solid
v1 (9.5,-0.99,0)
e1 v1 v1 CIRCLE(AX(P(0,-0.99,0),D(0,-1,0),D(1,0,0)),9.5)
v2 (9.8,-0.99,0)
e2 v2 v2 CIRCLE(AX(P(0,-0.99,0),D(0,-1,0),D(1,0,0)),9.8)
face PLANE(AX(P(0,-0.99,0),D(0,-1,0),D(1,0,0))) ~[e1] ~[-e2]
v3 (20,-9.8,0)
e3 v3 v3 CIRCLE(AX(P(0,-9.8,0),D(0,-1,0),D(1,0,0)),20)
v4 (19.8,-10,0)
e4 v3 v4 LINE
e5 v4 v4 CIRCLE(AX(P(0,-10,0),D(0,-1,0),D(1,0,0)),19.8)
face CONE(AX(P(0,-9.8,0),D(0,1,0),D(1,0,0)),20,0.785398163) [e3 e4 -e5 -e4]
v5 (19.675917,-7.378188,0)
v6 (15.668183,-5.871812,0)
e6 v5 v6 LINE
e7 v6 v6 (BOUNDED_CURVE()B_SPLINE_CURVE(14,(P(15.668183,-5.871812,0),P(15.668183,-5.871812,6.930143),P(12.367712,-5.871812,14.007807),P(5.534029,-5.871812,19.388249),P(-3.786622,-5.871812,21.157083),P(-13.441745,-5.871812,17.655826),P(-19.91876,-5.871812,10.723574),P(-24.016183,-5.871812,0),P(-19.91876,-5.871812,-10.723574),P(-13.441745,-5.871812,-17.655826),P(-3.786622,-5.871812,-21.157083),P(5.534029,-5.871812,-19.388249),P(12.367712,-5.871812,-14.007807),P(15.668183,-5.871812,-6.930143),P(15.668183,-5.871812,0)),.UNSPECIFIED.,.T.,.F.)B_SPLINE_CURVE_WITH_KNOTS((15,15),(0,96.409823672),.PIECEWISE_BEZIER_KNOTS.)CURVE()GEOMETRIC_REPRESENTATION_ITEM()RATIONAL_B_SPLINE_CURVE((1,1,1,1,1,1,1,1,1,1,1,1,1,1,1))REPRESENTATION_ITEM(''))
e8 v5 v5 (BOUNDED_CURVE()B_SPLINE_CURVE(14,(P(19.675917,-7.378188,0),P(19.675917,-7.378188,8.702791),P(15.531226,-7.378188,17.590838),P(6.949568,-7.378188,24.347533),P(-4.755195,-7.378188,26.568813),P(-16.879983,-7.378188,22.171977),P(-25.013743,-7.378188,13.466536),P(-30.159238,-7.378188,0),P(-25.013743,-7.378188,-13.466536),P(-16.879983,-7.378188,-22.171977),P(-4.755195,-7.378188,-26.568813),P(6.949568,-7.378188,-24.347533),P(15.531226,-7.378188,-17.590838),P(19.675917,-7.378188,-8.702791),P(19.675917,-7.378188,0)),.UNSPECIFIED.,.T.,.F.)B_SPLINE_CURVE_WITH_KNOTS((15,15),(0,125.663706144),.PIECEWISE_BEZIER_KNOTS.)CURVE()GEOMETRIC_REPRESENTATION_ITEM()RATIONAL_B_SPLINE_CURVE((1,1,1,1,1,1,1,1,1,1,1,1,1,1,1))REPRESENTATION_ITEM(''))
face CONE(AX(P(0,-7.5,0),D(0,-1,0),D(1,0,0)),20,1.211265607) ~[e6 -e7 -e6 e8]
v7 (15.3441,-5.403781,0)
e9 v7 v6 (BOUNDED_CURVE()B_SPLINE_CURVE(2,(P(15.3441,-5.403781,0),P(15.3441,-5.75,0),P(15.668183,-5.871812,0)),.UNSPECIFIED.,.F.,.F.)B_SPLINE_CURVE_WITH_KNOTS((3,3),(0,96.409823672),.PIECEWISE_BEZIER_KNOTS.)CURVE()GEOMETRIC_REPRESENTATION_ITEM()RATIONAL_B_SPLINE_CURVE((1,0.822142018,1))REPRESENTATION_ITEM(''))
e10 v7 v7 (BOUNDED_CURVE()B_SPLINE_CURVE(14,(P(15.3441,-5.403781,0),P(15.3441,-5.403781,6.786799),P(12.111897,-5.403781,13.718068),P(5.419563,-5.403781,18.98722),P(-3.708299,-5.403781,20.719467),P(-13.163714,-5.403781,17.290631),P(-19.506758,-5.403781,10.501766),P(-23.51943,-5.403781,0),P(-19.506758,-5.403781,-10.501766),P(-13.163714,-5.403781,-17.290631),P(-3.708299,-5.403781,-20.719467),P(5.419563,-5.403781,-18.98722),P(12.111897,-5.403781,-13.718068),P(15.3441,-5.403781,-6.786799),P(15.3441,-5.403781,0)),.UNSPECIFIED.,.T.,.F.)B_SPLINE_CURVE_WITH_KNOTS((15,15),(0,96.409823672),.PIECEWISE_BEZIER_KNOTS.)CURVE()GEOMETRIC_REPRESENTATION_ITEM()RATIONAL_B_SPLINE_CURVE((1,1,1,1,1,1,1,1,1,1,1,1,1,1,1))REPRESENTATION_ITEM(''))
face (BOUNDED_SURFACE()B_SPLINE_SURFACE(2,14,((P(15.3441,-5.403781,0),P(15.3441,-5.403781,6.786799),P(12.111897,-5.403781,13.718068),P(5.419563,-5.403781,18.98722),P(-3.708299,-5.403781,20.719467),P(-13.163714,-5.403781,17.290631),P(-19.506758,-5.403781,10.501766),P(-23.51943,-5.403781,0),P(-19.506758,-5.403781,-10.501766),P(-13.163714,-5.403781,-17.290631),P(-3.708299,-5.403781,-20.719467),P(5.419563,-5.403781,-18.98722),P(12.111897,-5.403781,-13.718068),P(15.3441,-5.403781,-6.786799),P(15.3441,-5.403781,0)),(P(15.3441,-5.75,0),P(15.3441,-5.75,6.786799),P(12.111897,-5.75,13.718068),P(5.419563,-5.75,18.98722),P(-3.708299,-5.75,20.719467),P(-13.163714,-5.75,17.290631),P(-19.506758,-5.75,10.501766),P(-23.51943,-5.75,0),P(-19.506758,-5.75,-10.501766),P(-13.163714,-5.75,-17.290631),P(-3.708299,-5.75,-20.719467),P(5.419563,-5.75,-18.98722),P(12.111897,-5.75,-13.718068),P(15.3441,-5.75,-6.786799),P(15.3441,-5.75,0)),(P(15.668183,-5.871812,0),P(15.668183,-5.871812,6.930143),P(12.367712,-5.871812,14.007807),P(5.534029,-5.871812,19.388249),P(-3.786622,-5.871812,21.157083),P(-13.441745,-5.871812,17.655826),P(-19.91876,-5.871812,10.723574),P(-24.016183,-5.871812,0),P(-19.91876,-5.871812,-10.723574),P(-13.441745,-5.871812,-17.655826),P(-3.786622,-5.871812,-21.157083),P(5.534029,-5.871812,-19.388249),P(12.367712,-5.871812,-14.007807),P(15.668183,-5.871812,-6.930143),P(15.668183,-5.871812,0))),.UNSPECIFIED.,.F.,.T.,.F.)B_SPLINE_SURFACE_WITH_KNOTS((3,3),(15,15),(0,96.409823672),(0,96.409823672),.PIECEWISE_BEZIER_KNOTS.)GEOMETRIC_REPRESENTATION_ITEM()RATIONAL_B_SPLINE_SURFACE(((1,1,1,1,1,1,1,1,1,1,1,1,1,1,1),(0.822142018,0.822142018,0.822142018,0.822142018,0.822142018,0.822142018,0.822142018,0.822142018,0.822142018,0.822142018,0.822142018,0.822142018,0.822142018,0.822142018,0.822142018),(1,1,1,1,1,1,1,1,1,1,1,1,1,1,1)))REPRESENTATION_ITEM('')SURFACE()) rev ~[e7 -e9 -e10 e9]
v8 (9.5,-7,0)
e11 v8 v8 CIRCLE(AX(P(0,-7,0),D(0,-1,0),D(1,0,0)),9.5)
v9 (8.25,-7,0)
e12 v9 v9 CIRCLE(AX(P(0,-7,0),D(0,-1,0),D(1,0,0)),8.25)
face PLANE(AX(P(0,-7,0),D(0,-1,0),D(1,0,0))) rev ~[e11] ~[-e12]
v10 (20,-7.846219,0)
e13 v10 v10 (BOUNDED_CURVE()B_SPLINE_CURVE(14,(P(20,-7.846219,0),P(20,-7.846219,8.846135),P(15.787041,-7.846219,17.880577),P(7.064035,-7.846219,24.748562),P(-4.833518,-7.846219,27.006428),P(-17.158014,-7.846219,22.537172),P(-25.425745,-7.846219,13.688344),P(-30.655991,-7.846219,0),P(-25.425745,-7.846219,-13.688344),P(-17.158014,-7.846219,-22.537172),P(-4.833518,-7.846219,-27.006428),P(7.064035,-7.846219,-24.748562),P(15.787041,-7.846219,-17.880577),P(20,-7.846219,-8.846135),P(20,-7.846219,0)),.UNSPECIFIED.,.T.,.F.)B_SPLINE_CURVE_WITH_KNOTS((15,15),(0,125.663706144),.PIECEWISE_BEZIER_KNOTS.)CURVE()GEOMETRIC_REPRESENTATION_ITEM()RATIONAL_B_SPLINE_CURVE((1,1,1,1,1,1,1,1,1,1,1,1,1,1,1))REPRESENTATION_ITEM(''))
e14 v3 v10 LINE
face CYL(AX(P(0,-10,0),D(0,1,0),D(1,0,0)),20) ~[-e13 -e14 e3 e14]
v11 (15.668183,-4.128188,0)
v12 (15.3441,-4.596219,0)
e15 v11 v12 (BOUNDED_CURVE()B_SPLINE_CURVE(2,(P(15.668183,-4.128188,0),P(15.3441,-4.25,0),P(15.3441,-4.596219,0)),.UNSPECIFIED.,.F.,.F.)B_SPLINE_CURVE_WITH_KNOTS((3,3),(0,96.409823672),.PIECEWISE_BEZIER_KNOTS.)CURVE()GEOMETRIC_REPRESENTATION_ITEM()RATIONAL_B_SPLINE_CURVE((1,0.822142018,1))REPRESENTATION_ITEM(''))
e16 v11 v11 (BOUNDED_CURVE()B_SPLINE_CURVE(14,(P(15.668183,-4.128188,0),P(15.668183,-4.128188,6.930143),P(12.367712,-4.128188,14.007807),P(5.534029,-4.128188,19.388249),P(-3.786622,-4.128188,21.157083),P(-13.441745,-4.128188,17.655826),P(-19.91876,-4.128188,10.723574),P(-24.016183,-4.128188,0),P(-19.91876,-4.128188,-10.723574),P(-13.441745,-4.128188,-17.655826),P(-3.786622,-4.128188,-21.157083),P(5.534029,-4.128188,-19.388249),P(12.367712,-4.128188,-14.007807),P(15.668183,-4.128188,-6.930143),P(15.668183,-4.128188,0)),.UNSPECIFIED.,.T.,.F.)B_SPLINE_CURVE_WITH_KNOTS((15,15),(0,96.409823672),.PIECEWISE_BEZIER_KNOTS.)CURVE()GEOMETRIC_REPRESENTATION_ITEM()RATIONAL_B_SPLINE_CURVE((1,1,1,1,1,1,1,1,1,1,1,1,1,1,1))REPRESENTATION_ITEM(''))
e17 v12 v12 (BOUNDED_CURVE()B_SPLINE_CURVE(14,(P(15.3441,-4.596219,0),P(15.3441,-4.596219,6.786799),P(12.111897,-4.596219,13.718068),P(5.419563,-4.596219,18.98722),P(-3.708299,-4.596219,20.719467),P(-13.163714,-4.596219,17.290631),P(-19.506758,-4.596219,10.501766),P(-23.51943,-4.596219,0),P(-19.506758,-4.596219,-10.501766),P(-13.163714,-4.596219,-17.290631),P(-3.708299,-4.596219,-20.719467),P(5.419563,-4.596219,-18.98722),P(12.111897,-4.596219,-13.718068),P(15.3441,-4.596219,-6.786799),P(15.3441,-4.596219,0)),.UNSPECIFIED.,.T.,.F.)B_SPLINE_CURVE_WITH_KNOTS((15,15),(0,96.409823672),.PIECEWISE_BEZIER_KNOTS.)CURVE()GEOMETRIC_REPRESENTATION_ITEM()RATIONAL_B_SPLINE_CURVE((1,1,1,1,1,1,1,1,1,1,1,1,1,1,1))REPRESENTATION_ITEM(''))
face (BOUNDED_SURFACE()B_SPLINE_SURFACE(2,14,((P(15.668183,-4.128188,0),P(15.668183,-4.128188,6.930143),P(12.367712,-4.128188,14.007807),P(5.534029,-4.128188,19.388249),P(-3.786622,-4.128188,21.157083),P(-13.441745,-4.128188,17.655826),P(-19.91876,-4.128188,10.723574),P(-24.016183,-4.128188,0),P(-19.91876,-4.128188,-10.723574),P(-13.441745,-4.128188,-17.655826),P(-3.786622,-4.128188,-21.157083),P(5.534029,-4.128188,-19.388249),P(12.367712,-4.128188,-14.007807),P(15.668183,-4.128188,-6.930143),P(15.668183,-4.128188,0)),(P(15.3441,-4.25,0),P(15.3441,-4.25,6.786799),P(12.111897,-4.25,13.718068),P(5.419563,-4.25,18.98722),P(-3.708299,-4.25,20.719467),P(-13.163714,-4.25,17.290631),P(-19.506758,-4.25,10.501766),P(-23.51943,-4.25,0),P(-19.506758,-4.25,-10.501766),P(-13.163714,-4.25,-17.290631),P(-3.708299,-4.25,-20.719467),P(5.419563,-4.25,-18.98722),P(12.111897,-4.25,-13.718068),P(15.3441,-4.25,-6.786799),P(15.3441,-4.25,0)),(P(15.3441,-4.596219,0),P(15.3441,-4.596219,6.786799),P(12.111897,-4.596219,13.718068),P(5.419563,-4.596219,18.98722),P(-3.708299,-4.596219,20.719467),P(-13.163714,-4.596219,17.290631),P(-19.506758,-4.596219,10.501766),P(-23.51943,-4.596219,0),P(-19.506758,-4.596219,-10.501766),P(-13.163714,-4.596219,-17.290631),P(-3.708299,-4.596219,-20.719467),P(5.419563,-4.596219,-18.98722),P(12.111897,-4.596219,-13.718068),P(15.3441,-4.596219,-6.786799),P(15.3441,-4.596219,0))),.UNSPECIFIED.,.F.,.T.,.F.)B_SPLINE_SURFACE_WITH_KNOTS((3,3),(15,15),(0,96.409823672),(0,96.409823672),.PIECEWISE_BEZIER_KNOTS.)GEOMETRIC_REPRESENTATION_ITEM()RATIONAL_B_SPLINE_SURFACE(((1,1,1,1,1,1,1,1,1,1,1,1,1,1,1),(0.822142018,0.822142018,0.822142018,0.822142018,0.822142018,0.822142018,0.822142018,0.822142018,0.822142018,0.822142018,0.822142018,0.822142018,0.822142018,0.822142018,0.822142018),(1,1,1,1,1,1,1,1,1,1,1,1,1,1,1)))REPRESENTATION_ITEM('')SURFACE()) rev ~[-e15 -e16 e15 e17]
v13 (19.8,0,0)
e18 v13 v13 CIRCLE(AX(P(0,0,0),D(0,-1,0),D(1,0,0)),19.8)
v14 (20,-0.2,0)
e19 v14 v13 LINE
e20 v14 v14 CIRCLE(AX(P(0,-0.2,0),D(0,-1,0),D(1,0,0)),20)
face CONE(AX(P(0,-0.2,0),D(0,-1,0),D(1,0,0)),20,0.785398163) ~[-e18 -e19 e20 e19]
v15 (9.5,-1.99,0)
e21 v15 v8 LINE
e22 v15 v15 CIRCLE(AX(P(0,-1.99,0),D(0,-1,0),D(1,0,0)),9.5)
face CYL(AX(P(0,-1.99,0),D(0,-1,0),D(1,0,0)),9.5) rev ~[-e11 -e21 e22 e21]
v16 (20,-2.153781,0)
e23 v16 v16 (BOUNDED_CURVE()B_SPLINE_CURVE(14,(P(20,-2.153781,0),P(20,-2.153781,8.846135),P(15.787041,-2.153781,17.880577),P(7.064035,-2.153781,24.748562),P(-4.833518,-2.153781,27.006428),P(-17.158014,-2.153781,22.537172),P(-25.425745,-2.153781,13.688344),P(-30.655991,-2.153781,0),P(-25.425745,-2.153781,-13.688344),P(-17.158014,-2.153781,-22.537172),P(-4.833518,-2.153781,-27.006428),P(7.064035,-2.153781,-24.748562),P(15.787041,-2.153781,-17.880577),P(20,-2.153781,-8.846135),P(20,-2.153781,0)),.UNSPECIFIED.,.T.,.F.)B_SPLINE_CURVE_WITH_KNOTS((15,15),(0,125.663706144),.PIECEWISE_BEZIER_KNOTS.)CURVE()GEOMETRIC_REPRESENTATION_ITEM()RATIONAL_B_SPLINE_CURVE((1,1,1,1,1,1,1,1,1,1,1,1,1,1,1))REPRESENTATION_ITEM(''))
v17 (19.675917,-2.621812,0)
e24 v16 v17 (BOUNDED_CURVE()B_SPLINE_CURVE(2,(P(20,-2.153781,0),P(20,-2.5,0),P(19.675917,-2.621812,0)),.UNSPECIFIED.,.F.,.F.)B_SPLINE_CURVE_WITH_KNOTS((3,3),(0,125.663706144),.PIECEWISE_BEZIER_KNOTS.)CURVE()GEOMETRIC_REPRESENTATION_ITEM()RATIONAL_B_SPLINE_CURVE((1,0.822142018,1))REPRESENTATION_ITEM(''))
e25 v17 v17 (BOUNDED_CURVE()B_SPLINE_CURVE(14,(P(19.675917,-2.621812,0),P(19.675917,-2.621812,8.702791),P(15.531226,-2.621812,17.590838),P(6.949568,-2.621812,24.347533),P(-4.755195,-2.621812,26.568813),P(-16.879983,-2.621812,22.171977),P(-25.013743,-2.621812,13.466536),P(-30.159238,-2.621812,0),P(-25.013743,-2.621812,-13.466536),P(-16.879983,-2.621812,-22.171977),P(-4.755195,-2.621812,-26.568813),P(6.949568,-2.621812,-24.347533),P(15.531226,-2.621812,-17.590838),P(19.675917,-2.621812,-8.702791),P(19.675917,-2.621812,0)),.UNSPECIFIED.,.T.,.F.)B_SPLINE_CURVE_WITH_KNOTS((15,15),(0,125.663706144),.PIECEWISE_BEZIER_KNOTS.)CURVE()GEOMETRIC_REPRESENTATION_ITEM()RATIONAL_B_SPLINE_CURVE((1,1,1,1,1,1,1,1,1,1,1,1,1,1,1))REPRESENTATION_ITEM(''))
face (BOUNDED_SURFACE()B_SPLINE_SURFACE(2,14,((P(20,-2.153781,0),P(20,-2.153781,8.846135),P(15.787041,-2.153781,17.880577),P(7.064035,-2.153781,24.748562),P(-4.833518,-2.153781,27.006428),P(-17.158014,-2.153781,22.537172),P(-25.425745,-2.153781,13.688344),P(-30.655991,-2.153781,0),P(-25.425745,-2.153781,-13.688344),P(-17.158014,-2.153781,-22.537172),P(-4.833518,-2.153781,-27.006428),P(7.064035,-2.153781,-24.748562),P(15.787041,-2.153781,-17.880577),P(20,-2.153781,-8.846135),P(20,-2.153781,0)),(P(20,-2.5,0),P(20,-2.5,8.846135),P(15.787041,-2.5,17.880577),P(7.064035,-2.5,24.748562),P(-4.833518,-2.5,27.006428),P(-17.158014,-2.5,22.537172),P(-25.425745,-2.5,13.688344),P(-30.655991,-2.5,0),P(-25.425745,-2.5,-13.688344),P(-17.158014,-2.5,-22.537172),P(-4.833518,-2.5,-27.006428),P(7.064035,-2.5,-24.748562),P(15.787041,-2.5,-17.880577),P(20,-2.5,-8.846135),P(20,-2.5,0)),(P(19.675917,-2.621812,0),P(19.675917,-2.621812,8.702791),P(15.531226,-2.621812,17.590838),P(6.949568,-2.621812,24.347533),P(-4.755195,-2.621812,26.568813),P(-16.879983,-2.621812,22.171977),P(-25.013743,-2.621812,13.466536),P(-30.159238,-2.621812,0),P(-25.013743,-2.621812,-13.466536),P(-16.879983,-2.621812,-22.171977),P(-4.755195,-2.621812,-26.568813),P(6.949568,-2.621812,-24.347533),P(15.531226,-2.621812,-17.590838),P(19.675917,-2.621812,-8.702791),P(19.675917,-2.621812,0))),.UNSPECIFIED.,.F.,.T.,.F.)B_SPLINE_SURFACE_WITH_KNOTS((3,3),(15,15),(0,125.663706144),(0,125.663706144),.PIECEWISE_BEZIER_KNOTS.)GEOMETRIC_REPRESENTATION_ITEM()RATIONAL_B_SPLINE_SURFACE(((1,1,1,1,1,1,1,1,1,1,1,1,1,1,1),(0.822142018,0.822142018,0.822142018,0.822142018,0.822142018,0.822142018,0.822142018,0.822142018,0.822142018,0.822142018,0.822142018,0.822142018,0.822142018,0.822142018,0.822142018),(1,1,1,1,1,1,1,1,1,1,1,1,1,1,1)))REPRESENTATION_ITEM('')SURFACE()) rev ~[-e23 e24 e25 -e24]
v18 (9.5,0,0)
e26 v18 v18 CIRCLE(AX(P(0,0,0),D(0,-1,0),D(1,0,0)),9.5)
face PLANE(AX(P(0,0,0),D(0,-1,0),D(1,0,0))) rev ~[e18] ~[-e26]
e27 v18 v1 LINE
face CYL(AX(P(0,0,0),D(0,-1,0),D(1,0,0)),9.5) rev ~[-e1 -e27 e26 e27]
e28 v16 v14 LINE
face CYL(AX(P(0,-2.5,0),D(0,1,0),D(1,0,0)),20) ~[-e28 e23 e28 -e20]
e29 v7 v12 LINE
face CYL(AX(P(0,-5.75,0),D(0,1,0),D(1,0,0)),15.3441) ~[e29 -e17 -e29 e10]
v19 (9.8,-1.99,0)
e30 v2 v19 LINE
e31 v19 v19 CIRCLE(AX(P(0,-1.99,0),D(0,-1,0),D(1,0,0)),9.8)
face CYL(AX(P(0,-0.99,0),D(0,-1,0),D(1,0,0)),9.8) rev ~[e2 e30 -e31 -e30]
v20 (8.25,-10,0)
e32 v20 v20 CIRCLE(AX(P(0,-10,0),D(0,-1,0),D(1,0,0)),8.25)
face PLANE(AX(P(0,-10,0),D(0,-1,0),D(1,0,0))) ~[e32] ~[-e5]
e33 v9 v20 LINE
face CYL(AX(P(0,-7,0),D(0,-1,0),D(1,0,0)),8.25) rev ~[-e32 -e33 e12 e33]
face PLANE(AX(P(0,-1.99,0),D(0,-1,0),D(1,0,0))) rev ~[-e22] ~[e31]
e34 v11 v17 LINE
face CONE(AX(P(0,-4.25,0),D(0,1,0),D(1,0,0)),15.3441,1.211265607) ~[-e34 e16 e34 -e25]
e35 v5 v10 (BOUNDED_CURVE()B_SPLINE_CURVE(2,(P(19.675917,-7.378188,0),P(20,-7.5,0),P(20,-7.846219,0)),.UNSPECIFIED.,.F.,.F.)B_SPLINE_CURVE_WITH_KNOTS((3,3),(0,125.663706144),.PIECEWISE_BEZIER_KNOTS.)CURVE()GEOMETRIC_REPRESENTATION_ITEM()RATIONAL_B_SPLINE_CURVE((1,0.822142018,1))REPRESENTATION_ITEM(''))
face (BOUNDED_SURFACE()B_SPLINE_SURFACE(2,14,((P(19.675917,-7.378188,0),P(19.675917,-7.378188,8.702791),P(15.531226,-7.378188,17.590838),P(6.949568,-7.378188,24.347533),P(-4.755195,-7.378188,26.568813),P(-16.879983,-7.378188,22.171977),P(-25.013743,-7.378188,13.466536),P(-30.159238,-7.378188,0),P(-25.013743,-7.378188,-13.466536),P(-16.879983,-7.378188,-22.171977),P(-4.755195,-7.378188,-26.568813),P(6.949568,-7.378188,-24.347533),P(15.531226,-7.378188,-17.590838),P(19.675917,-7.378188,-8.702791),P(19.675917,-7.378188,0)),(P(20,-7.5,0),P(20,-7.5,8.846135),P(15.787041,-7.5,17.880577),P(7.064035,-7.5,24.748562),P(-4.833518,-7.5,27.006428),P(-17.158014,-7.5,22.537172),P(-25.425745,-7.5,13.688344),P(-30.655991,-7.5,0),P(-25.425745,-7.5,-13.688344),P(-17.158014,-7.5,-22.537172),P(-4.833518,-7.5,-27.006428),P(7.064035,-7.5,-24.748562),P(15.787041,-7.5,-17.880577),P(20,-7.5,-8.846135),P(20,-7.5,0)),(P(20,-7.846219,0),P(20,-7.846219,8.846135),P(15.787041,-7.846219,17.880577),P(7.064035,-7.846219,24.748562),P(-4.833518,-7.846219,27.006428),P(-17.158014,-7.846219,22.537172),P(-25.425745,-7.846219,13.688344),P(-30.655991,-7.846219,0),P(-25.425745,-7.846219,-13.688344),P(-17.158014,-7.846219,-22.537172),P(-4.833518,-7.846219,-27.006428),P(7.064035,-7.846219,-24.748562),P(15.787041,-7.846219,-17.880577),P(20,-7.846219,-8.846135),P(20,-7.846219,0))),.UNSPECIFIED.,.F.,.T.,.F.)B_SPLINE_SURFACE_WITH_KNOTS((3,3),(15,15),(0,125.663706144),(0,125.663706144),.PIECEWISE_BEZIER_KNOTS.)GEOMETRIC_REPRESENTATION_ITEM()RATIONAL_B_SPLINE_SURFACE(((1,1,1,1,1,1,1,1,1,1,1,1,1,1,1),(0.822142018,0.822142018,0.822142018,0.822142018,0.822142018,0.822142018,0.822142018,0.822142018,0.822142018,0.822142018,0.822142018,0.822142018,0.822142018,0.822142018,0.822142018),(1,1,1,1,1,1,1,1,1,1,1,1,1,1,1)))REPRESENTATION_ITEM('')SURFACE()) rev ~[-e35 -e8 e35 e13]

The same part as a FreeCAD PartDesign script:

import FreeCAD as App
import Part
import Sketcher
Q = App.Units.Quantity


def edges_at(feature, points):
    """Names of the edges that pass closest to the given points."""
    edges = feature.Shape.Edges
    near = lambda p: min(range(len(edges)), key=lambda i: edges[i].distToShape(Part.Vertex(*p))[0])
    return sorted({f"Edge{near(p) + 1}" for p in points})

doc = App.newDocument("Part")
body = doc.addObject("PartDesign::Body", "Body")

# Sketch on XY plane
sketch1 = doc.addObject("Sketcher::SketchObject", "Sketch")
body.addObject(sketch1)
sketch1.AttachmentSupport = (doc.XY_Plane, [""])
sketch1.MapMode = "FlatFace"
sketch1.addGeometry(Part.LineSegment(App.Vector(8.25, -7, 0), App.Vector(8.25, -10, 0)), False)
sketch1.addGeometry(Part.LineSegment(App.Vector(8.25, -10, 0), App.Vector(20, -10, 0)), False)
sketch1.addGeometry(Part.LineSegment(App.Vector(20, -10, 0), App.Vector(20, -7.5, 0)), False)
sketch1.addGeometry(Part.LineSegment(App.Vector(20, -7.5, 0), App.Vector(15.34, -5.75, 0)), False)
sketch1.addGeometry(Part.LineSegment(App.Vector(15.34, -5.75, 0), App.Vector(15.34, -4.25, 0)), False)
sketch1.addGeometry(Part.LineSegment(App.Vector(15.34, -4.25, 0), App.Vector(20, -2.5, 0)), False)
sketch1.addGeometry(Part.LineSegment(App.Vector(20, -2.5, 0), App.Vector(20, 0, 0)), False)
sketch1.addGeometry(Part.LineSegment(App.Vector(20, 0, 0), App.Vector(9.5, 0, 0)), False)
sketch1.addGeometry(Part.LineSegment(App.Vector(9.5, 0, 0), App.Vector(9.5, -0.99, 0)), False)
sketch1.addGeometry(Part.LineSegment(App.Vector(9.5, -0.99, 0), App.Vector(9.8, -0.99, 0)), False)
sketch1.addGeometry(Part.LineSegment(App.Vector(9.8, -0.99, 0), App.Vector(9.8, -1.99, 0)), False)
sketch1.addGeometry(Part.LineSegment(App.Vector(9.8, -1.99, 0), App.Vector(9.5, -1.99, 0)), False)
sketch1.addGeometry(Part.LineSegment(App.Vector(9.5, -1.99, 0), App.Vector(9.5, -7, 0)), False)
sketch1.addGeometry(Part.LineSegment(App.Vector(9.5, -7, 0), App.Vector(8.25, -7, 0)), False)
sketch1.addConstraint(Sketcher.Constraint("Coincident", 0, 2, 1, 1))
sketch1.addConstraint(Sketcher.Constraint("Coincident", 1, 2, 2, 1))
sketch1.addConstraint(Sketcher.Constraint("Coincident", 2, 2, 3, 1))
sketch1.addConstraint(Sketcher.Constraint("Coincident", 3, 2, 4, 1))
sketch1.addConstraint(Sketcher.Constraint("Coincident", 4, 2, 5, 1))
sketch1.addConstraint(Sketcher.Constraint("Coincident", 5, 2, 6, 1))
sketch1.addConstraint(Sketcher.Constraint("Coincident", 6, 2, 7, 1))
sketch1.addConstraint(Sketcher.Constraint("Coincident", 7, 2, 8, 1))
sketch1.addConstraint(Sketcher.Constraint("Coincident", 8, 2, 9, 1))
sketch1.addConstraint(Sketcher.Constraint("Coincident", 9, 2, 10, 1))
sketch1.addConstraint(Sketcher.Constraint("Coincident", 10, 2, 11, 1))
sketch1.addConstraint(Sketcher.Constraint("Coincident", 11, 2, 12, 1))
sketch1.addConstraint(Sketcher.Constraint("Coincident", 12, 2, 13, 1))
sketch1.addConstraint(Sketcher.Constraint("Coincident", 13, 2, 0, 1))
sketch1.addConstraint(Sketcher.Constraint("Vertical", 0))
sketch1.addConstraint(Sketcher.Constraint("Horizontal", 1))
sketch1.addConstraint(Sketcher.Constraint("Vertical", 2))
sketch1.addConstraint(Sketcher.Constraint("Vertical", 4))
sketch1.addConstraint(Sketcher.Constraint("Vertical", 6))
sketch1.addConstraint(Sketcher.Constraint("Horizontal", 7))
sketch1.addConstraint(Sketcher.Constraint("Vertical", 8))
sketch1.addConstraint(Sketcher.Constraint("Horizontal", 9))
sketch1.addConstraint(Sketcher.Constraint("Vertical", 10))
sketch1.addConstraint(Sketcher.Constraint("Horizontal", 11))
sketch1.addConstraint(Sketcher.Constraint("Vertical", 12))
sketch1.addConstraint(Sketcher.Constraint("Horizontal", 13))
sketch1.addConstraint(Sketcher.Constraint("PointOnObject", 6, 2, -1))
sketch1.addConstraint(Sketcher.Constraint("Vertical", 2, 2, 5, 2))
sketch1.addConstraint(Sketcher.Constraint("Vertical", 8, 2, 11, 2))
sketch1.addConstraint(Sketcher.Constraint("Equal", 2, 6))
sketch1.addConstraint(Sketcher.Constraint("Equal", 3, 5))
sketch1.addConstraint(Sketcher.Constraint("DistanceY", 0, 2, 0, 1, Q("3 mm")))
sketch1.addConstraint(Sketcher.Constraint("DistanceY", 10, 2, 10, 1, Q("1 mm")))
sketch1.addConstraint(Sketcher.Constraint("DistanceX", 9, 1, 9, 2, Q("0.3 mm")))
sketch1.addConstraint(Sketcher.Constraint("DistanceY", 2, 1, 2, 2, Q("2.5 mm")))
sketch1.addConstraint(Sketcher.Constraint("DistanceY", 4, 1, 4, 2, Q("1.5 mm")))
sketch1.addConstraint(Sketcher.Constraint("DistanceY", 0, 2, -1, 1, Q("10 mm")))
sketch1.addConstraint(Sketcher.Constraint("DistanceX", 1, 1, 1, 2, Q("11.75 mm")))
sketch1.addConstraint(Sketcher.Constraint("DistanceX", 13, 2, 13, 1, Q("1.25 mm")))
sketch1.addConstraint(Sketcher.Constraint("DistanceY", 8, 2, 8, 1, Q("0.99 mm")))
sketch1.addConstraint(Sketcher.Constraint("DistanceX", -1, 1, 0, 2, Q("8.25 mm")))
sketch1.addConstraint(Sketcher.Constraint("Angle", 3, Q("159.4004 deg")))
revolution = doc.addObject("PartDesign::Revolution", "Revolution")
body.addObject(revolution)
revolution.Profile = sketch1
revolution.ReferenceAxis = (sketch1, ["V_Axis"])
revolution.Angle = 360
doc.recompute()

fillet = doc.addObject("PartDesign::Fillet", "Fillet")
body.addObject(fillet)
fillet.Base = (revolution, edges_at(revolution, [
    (-15.344, -5.75, 0),
    (-15.344, -4.25, 0),
    (-20, -7.5, 0),
    (-20, -2.5, 0),
]))
fillet.Radius = 0.5
doc.recompute()

chamfer = doc.addObject("PartDesign::Chamfer", "Chamfer")
body.addObject(chamfer)
chamfer.Base = (fillet, edges_at(fillet, [(-20, 0, 0), (-20, -10, 0)]))
chamfer.Size = 0.2

doc.recompute()
